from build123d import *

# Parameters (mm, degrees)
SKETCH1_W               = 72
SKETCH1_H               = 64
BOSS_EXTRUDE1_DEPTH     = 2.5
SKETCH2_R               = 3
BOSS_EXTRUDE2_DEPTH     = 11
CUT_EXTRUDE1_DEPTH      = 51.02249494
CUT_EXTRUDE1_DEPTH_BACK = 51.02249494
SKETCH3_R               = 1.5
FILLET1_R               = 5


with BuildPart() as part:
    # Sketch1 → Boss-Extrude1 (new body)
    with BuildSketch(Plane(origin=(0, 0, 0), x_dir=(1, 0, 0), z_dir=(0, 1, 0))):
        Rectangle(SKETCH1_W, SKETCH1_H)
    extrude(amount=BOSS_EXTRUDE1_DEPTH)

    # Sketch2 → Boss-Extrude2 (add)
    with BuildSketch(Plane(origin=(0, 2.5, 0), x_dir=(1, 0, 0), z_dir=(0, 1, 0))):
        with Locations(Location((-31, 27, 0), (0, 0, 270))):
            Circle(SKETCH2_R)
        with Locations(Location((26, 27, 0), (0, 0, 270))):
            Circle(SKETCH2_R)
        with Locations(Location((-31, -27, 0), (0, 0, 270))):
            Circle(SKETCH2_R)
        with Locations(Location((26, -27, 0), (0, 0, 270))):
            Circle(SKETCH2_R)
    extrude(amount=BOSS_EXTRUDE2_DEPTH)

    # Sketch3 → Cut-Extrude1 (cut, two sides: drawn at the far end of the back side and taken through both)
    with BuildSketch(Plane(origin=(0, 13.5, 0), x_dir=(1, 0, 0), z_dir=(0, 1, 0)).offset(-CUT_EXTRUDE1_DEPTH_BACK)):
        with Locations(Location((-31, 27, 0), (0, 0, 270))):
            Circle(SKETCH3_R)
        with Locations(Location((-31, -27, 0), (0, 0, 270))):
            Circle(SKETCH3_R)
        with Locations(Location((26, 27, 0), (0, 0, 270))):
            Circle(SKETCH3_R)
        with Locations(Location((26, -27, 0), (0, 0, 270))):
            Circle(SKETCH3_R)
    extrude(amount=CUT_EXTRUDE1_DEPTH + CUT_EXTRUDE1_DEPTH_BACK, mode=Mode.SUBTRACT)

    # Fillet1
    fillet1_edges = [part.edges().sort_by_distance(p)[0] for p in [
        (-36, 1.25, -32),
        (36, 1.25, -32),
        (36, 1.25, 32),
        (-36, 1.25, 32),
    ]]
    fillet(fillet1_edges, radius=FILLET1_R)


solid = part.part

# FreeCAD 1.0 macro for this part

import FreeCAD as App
import Part
import Sketcher
Q = App.Units.Quantity


def edges_at(feature, points):
    """Names of the edges that pass closest to the given points."""
    edges = feature.Shape.Edges
    near = lambda p: min(range(len(edges)), key=lambda i: edges[i].distToShape(Part.Vertex(*p))[0])
    return sorted({f"Edge{near(p) + 1}" for p in points})

doc = App.newDocument("Part")
params = doc.addObject("Spreadsheet::Sheet", "Params")
for row, (alias, value) in enumerate([
    ("sketch1_width", "72 mm"),
    ("sketch1_height", "64 mm"),
    ("pad1_length", "2.5 mm"),
    ("sketch2_diameter", "6 mm"),
    ("pad2_length", "11 mm"),
    ("sketch3_diameter", "3 mm"),
    ("fillet_radius", "5 mm"),
], start=1):
    params.set(f"A{row}", alias)
    params.set(f"B{row}", "=" + value)
    params.setAlias(f"B{row}", alias)

body = doc.addObject("PartDesign::Body", "Body")

# Sketch on XZ plane
sketch1 = doc.addObject("Sketcher::SketchObject", "Sketch")
body.addObject(sketch1)
sketch1.AttachmentSupport = (doc.XZ_Plane, [""])
sketch1.MapMode = "FlatFace"
sketch1.addGeometry(Part.LineSegment(App.Vector(-36, -32, 0), App.Vector(-36, 32, 0)), False)
sketch1.addGeometry(Part.LineSegment(App.Vector(-36, 32, 0), App.Vector(36, 32, 0)), False)
sketch1.addGeometry(Part.LineSegment(App.Vector(36, 32, 0), App.Vector(36, -32, 0)), False)
sketch1.addGeometry(Part.LineSegment(App.Vector(36, -32, 0), App.Vector(-36, -32, 0)), False)
sketch1.addConstraint(Sketcher.Constraint("Coincident", 0, 2, 1, 1))
sketch1.addConstraint(Sketcher.Constraint("Coincident", 1, 2, 2, 1))
sketch1.addConstraint(Sketcher.Constraint("Coincident", 2, 2, 3, 1))
sketch1.addConstraint(Sketcher.Constraint("Coincident", 3, 2, 0, 1))
sketch1.addConstraint(Sketcher.Constraint("Vertical", 0))
sketch1.addConstraint(Sketcher.Constraint("Horizontal", 1))
sketch1.addConstraint(Sketcher.Constraint("Vertical", 2))
sketch1.addConstraint(Sketcher.Constraint("Horizontal", 3))
sketch1.addConstraint(Sketcher.Constraint("Symmetric", 0, 2, 2, 2, -1, 1))
sketch1.addConstraint(Sketcher.Constraint("DistanceX", 1, 1, 1, 2, Q("72 mm")))
sketch1.addConstraint(Sketcher.Constraint("DistanceY", 0, 1, 0, 2, Q("64 mm")))
sketch1.setExpression("Constraints[9]", "Params.sketch1_width")
sketch1.setExpression("Constraints[10]", "Params.sketch1_height")
pad1 = doc.addObject("PartDesign::Pad", "Pad")
body.addObject(pad1)
pad1.Profile = sketch1
pad1.setExpression("Length", "Params.pad1_length")
pad1.Reversed = True

# Sketch on XZ plane
sketch2 = doc.addObject("Sketcher::SketchObject", "Sketch001")
body.addObject(sketch2)
sketch2.AttachmentSupport = (doc.XZ_Plane, [""])
sketch2.MapMode = "FlatFace"
sketch2.AttachmentOffset = App.Placement(App.Vector(0, 0, -2.5), App.Rotation())
sketch2.addGeometry(Part.Circle(App.Vector(-31, -27, 0), App.Vector(0, 0, 1), 3), False)
sketch2.addGeometry(Part.Circle(App.Vector(26, -27, 0), App.Vector(0, 0, 1), 3), False)
sketch2.addGeometry(Part.Circle(App.Vector(-31, 27, 0), App.Vector(0, 0, 1), 3), False)
sketch2.addGeometry(Part.Circle(App.Vector(26, 27, 0), App.Vector(0, 0, 1), 3), False)
sketch2.addConstraint(Sketcher.Constraint("Equal", 0, 1))
sketch2.addConstraint(Sketcher.Constraint("Equal", 1, 2))
sketch2.addConstraint(Sketcher.Constraint("Equal", 2, 3))
sketch2.addConstraint(Sketcher.Constraint("Symmetric", 0, 3, 2, 3, -1))
sketch2.addConstraint(Sketcher.Constraint("Symmetric", 1, 3, 3, 3, -1))
sketch2.addConstraint(Sketcher.Constraint("Horizontal", 0, 3, 1, 3))
sketch2.addConstraint(Sketcher.Constraint("Diameter", 0, Q("6 mm")))
sketch2.addConstraint(Sketcher.Constraint("DistanceX", 0, 3, -1, 1, Q("31 mm")))
sketch2.addConstraint(Sketcher.Constraint("DistanceY", 0, 3, -1, 1, Q("27 mm")))
sketch2.addConstraint(Sketcher.Constraint("DistanceX", -1, 1, 1, 3, Q("26 mm")))
sketch2.setExpression("Constraints[6]", "Params.sketch2_diameter")
pad2 = doc.addObject("PartDesign::Pad", "Pad001")
body.addObject(pad2)
pad2.Profile = sketch2
pad2.setExpression("Length", "Params.pad2_length")
pad2.Reversed = True

# Sketch on XZ plane
sketch3 = doc.addObject("Sketcher::SketchObject", "Sketch002")
body.addObject(sketch3)
sketch3.AttachmentSupport = (doc.XZ_Plane, [""])
sketch3.MapMode = "FlatFace"
sketch3.AttachmentOffset = App.Placement(App.Vector(0, 0, -13.5), App.Rotation())
sketch3.addGeometry(Part.Circle(App.Vector(-31, -27, 0), App.Vector(0, 0, 1), 1.5), False)
sketch3.addGeometry(Part.Circle(App.Vector(-31, 27, 0), App.Vector(0, 0, 1), 1.5), False)
sketch3.addGeometry(Part.Circle(App.Vector(26, -27, 0), App.Vector(0, 0, 1), 1.5), False)
sketch3.addGeometry(Part.Circle(App.Vector(26, 27, 0), App.Vector(0, 0, 1), 1.5), False)
sketch3.addConstraint(Sketcher.Constraint("Equal", 0, 1))
sketch3.addConstraint(Sketcher.Constraint("Equal", 1, 2))
sketch3.addConstraint(Sketcher.Constraint("Equal", 2, 3))
sketch3.addConstraint(Sketcher.Constraint("Symmetric", 0, 3, 1, 3, -1))
sketch3.addConstraint(Sketcher.Constraint("Symmetric", 2, 3, 3, 3, -1))
sketch3.addConstraint(Sketcher.Constraint("Horizontal", 0, 3, 2, 3))
sketch3.addConstraint(Sketcher.Constraint("Diameter", 0, Q("3 mm")))
sketch3.addConstraint(Sketcher.Constraint("DistanceX", 0, 3, -1, 1, Q("31 mm")))
sketch3.addConstraint(Sketcher.Constraint("DistanceY", 0, 3, -1, 1, Q("27 mm")))
sketch3.addConstraint(Sketcher.Constraint("DistanceX", -1, 1, 2, 3, Q("26 mm")))
sketch3.setExpression("Constraints[6]", "Params.sketch3_diameter")
pocket1 = doc.addObject("PartDesign::Pocket", "Pocket")
body.addObject(pocket1)
pocket1.Profile = sketch3
pocket1.Type = "ThroughAll"
pocket1.Midplane = True
doc.recompute()

fillet = doc.addObject("PartDesign::Fillet", "Fillet")
body.addObject(fillet)
fillet.Base = (pocket1, edges_at(pocket1, [
    (-36, 1.25, -32),
    (36, 1.25, -32),
    (36, 1.25, 32),
    (-36, 1.25, 32),
]))
fillet.setExpression("Radius", "Params.fillet_radius")

doc.recompute()
